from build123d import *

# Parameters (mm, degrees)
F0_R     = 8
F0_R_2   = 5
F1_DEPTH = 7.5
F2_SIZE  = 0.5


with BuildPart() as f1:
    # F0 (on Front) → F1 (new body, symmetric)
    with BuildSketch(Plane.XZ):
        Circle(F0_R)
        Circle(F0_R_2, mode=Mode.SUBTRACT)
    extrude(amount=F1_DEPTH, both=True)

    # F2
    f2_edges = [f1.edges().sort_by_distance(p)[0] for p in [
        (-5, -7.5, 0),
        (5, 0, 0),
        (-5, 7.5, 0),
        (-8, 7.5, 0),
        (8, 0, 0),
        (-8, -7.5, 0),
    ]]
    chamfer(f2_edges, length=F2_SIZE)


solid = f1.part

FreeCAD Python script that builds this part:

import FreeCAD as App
import Part
import Sketcher

V = App.Vector
Q = App.Units.Quantity

doc = App.newDocument("Part")
body = doc.addObject("PartDesign::Body", "Body")

# Sketch on XZ plane
sketch1 = doc.addObject("Sketcher::SketchObject", "Sketch")
body.addObject(sketch1)
sketch1.AttachmentSupport = (doc.XZ_Plane, [""])
sketch1.MapMode = "FlatFace"
sketch1.addGeometry(Part.Circle(V(0, 0, 0), V(0, 0, 1), 8), False)
sketch1.addGeometry(Part.Circle(V(0, 0, 0), V(0, 0, 1), 5), False)
sketch1.addConstraint(Sketcher.Constraint("Coincident", 0, 3, -1, 1))
sketch1.addConstraint(Sketcher.Constraint("Coincident", 1, 3, -1, 1))
sketch1.addConstraint(Sketcher.Constraint("Diameter", 0, Q("16 mm")))
sketch1.addConstraint(Sketcher.Constraint("Diameter", 1, Q("10 mm")))
pad1 = doc.addObject("PartDesign::Pad", "Pad")
body.addObject(pad1)
pad1.Profile = sketch1
pad1.Length = 15
pad1.Midplane = True
doc.recompute()

chamfer = doc.addObject("PartDesign::Chamfer", "Chamfer")
body.addObject(chamfer)
chamfer.Base = (pad1, ["Edge1"])
chamfer.UseAllEdges = True
chamfer.Size = 0.5

doc.recompute()
